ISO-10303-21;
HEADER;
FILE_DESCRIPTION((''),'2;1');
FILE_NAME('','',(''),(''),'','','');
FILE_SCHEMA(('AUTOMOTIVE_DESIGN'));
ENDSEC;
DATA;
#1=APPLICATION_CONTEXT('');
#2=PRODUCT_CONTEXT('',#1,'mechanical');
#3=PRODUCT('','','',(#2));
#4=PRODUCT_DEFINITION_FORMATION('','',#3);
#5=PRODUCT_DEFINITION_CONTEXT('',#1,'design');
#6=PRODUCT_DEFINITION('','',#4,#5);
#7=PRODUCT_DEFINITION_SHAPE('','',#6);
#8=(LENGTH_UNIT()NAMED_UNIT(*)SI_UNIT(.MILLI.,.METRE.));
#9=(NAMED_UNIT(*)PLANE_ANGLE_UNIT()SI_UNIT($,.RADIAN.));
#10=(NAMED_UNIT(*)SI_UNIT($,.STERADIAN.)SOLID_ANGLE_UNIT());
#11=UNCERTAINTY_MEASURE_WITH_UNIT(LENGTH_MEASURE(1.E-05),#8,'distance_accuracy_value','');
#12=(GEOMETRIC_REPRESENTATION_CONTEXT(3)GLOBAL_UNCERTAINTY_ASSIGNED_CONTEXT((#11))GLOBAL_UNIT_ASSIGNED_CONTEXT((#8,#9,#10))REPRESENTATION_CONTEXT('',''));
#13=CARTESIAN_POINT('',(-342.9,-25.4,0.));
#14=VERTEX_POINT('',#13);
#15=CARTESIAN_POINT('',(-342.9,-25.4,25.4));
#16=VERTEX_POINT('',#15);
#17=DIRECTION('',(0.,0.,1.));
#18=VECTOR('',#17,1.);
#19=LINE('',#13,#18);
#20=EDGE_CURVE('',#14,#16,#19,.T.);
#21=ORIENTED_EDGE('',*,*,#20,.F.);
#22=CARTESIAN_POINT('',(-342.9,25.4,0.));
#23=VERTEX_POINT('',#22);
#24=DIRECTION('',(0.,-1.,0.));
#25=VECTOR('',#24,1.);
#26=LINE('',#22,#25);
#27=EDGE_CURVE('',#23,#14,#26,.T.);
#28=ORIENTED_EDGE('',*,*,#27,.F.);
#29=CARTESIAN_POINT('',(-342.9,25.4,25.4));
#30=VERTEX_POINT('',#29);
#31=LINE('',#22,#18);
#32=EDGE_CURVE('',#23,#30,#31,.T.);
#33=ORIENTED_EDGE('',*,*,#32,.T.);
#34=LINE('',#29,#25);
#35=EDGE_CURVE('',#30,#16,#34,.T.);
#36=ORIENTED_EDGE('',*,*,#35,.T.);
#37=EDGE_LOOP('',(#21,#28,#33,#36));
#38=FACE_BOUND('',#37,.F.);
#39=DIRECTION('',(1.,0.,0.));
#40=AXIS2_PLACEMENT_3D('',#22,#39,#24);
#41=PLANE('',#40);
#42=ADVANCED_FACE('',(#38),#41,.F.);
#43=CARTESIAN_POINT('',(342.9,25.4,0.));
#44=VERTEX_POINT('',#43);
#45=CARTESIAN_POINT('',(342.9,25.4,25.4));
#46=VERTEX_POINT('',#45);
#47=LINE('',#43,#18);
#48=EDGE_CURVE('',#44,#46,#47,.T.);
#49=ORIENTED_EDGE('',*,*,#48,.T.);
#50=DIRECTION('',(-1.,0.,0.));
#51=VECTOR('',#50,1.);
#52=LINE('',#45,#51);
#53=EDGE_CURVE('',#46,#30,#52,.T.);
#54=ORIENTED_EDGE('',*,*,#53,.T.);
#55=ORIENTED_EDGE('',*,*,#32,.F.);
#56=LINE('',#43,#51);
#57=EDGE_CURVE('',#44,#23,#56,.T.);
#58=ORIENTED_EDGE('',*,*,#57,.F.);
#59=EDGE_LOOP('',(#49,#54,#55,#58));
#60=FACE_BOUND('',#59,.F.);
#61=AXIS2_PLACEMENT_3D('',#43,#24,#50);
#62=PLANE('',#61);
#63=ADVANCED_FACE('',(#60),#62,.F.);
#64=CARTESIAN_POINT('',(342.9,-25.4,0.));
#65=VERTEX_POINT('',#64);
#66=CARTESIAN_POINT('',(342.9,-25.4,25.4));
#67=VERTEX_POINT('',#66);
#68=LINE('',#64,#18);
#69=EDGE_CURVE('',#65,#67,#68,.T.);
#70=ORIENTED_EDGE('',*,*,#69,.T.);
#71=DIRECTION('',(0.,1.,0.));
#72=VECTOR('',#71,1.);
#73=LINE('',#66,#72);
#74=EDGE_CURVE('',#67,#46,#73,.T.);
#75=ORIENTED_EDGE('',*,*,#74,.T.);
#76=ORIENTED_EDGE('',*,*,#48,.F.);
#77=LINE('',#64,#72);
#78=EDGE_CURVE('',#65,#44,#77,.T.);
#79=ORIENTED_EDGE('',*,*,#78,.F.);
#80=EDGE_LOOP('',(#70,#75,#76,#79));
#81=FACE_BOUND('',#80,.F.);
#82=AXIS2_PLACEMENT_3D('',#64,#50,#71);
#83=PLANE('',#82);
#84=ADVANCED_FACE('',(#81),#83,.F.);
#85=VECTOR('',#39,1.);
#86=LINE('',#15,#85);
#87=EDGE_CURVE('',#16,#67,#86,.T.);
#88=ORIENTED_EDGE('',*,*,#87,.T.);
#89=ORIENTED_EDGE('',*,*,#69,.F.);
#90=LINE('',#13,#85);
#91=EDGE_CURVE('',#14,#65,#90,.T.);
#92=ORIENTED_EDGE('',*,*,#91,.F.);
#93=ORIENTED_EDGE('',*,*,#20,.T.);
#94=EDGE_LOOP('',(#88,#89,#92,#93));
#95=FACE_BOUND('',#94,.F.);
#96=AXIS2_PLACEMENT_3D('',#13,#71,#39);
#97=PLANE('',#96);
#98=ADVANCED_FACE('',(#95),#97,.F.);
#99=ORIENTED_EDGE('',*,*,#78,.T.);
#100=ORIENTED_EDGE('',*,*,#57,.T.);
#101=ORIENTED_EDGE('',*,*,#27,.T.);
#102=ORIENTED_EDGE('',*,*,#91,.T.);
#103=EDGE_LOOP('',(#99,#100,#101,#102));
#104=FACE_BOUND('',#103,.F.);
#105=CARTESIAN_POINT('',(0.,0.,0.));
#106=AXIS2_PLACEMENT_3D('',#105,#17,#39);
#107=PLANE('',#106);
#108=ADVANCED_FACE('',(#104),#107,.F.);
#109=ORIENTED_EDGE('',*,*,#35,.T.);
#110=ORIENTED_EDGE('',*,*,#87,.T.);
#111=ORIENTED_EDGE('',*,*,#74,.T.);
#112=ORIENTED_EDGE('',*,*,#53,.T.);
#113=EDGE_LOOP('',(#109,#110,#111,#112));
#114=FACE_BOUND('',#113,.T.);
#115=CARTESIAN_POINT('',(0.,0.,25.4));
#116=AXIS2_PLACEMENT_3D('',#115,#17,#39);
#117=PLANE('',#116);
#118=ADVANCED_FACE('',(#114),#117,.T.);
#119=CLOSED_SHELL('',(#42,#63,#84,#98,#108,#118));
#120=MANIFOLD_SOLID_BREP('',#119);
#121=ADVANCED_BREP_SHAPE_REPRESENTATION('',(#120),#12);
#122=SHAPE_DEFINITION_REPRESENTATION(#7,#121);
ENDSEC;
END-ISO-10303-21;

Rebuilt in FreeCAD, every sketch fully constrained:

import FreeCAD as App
import Part
import Sketcher

V = App.Vector
Q = App.Units.Quantity


def add_polygon(sketch, points):
    """Adds a closed chain of lines whose ends are joined by coincident constraints."""
    first, n = sketch.GeometryCount, len(points)
    for a, b in zip(points, points[1:] + points[:1]):
        sketch.addGeometry(Part.LineSegment(App.Vector(*a, 0), App.Vector(*b, 0)), False)
    for i in range(n):
        sketch.addConstraint(Sketcher.Constraint("Coincident", first + i, 2, first + (i + 1) % n, 1))

doc = App.newDocument("Part")
body = doc.addObject("PartDesign::Body", "Body")

sketch1 = body.newObject("Sketcher::SketchObject", "Sketch")
sketch1.AttachmentSupport = (doc.getObject("XY_Plane"), [""])
sketch1.MapMode = "FlatFace"
add_polygon(sketch1, [(-343, 25), (-343, -25), (343, -25), (343, 25)])
sketch1.addConstraint(Sketcher.Constraint("Vertical", 0))
sketch1.addConstraint(Sketcher.Constraint("Horizontal", 1))
sketch1.addConstraint(Sketcher.Constraint("Vertical", 2))
sketch1.addConstraint(Sketcher.Constraint("Horizontal", 3))
sketch1.addConstraint(Sketcher.Constraint("Symmetric", 0, 2, 2, 2, -1, 1))
sketch1.addConstraint(Sketcher.Constraint("DistanceX", 1, 1, 1, 2, Q("27 in")))
sketch1.addConstraint(Sketcher.Constraint("DistanceY", 0, 2, 0, 1, Q("2 in")))
pad1 = body.newObject("PartDesign::Pad", "Pad")
pad1.Profile = sketch1
pad1.Length = Q("1 in")

doc.recompute()
